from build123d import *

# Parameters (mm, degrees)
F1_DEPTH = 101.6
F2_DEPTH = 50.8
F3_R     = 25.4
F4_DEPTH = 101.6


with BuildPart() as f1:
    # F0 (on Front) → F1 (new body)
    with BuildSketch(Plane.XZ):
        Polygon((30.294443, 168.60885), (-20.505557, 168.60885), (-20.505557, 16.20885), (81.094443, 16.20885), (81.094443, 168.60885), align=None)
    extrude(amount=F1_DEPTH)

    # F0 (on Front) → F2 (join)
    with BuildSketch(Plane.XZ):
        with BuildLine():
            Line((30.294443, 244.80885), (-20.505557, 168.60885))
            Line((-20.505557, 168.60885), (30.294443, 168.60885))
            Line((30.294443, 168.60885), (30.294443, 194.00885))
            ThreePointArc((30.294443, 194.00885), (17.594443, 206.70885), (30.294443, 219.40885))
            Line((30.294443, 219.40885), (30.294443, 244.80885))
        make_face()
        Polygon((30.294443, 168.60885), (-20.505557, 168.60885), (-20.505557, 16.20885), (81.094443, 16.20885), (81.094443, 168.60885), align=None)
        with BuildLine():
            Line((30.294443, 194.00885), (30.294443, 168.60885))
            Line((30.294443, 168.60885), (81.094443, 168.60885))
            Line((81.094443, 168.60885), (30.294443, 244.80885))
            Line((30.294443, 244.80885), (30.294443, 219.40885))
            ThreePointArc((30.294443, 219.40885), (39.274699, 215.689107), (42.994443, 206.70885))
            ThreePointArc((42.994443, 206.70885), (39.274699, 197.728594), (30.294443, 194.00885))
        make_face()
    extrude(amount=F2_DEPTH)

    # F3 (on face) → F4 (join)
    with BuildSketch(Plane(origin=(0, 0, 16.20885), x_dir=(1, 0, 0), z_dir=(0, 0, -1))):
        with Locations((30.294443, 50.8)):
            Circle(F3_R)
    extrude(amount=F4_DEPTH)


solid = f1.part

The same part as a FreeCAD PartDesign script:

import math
import FreeCAD as App
import Part
import Sketcher
Q = App.Units.Quantity

doc = App.newDocument("Part")
body = doc.addObject("PartDesign::Body", "Body")

sketch1 = doc.addObject("Sketcher::SketchObject", "Sketch")
body.addObject(sketch1)
sketch1.AttachmentSupport = (doc.XZ_Plane, [""])
sketch1.MapMode = "FlatFace"
sketch1.addGeometry(Part.LineSegment(App.Vector(-21, 169, 0), App.Vector(-21, 16, 0)), False)
sketch1.addGeometry(Part.LineSegment(App.Vector(-21, 16, 0), App.Vector(81, 16, 0)), False)
sketch1.addGeometry(Part.LineSegment(App.Vector(81, 16, 0), App.Vector(81, 169, 0)), False)
sketch1.addGeometry(Part.LineSegment(App.Vector(81, 169, 0), App.Vector(-21, 169, 0)), False)
sketch1.addConstraint(Sketcher.Constraint("Coincident", 0, 2, 1, 1))
sketch1.addConstraint(Sketcher.Constraint("Coincident", 1, 2, 2, 1))
sketch1.addConstraint(Sketcher.Constraint("Coincident", 2, 2, 3, 1))
sketch1.addConstraint(Sketcher.Constraint("Coincident", 3, 2, 0, 1))
sketch1.addConstraint(Sketcher.Constraint("Vertical", 0))
sketch1.addConstraint(Sketcher.Constraint("Horizontal", 1))
sketch1.addConstraint(Sketcher.Constraint("Vertical", 2))
sketch1.addConstraint(Sketcher.Constraint("Horizontal", 3))
sketch1.addConstraint(Sketcher.Constraint("DistanceX", 1, 1, 1, 2, Q("4 in")))
sketch1.addConstraint(Sketcher.Constraint("DistanceY", 0, 2, 0, 1, Q("6 in")))
sketch1.addConstraint(Sketcher.Constraint("DistanceY", -1, 1, 0, 2, 16.20885))
sketch1.addConstraint(Sketcher.Constraint("DistanceX", 0, 2, -1, 1, 20.505557))
pad1 = doc.addObject("PartDesign::Pad", "Pad")
body.addObject(pad1)
pad1.Profile = sketch1
pad1.Length = Q("4 in")

sketch2 = doc.addObject("Sketcher::SketchObject", "Sketch001")
body.addObject(sketch2)
sketch2.AttachmentSupport = (doc.XZ_Plane, [""])
sketch2.MapMode = "FlatFace"
sketch2.addGeometry(Part.LineSegment(App.Vector(30, 245, 0), App.Vector(-21, 169, 0)), False)
sketch2.addGeometry(Part.LineSegment(App.Vector(-21, 169, 0), App.Vector(-21, 16, 0)), False)
sketch2.addGeometry(Part.LineSegment(App.Vector(-21, 16, 0), App.Vector(81, 16, 0)), False)
sketch2.addGeometry(Part.LineSegment(App.Vector(81, 16, 0), App.Vector(81, 169, 0)), False)
sketch2.addGeometry(Part.LineSegment(App.Vector(81, 169, 0), App.Vector(30, 245, 0)), False)
sketch2.addGeometry(Part.ArcOfCircle(Part.Circle(App.Vector(30, 207, 0), App.Vector(0, 0, 1), 13), math.radians(90), math.radians(270)), False)
sketch2.addGeometry(Part.ArcOfCircle(Part.Circle(App.Vector(30, 207, 0), App.Vector(0, 0, 1), 13), math.radians(0), math.radians(90)), False)
sketch2.addGeometry(Part.ArcOfCircle(Part.Circle(App.Vector(30, 207, 0), App.Vector(0, 0, 1), 13), math.radians(-90), math.radians(0)), False)
sketch2.addConstraint(Sketcher.Constraint("Coincident", 0, 2, 1, 1))
sketch2.addConstraint(Sketcher.Constraint("Coincident", 1, 2, 2, 1))
sketch2.addConstraint(Sketcher.Constraint("Coincident", 2, 2, 3, 1))
sketch2.addConstraint(Sketcher.Constraint("Coincident", 3, 2, 4, 1))
sketch2.addConstraint(Sketcher.Constraint("Coincident", 4, 2, 0, 1))
sketch2.addConstraint(Sketcher.Constraint("Tangent", 5, 1, 6, 2))
sketch2.addConstraint(Sketcher.Constraint("Tangent", 6, 1, 7, 2))
sketch2.addConstraint(Sketcher.Constraint("Tangent", 7, 1, 5, 2))
sketch2.addConstraint(Sketcher.Constraint("Vertical", 1))
sketch2.addConstraint(Sketcher.Constraint("Horizontal", 2))
sketch2.addConstraint(Sketcher.Constraint("Vertical", 3))
sketch2.addConstraint(Sketcher.Constraint("Horizontal", 0, 2, 3, 2))
sketch2.addConstraint(Sketcher.Constraint("Horizontal", 7, 3, 6, 1))
sketch2.addConstraint(Sketcher.Constraint("Vertical", 7, 3, 4, 2))
sketch2.addConstraint(Sketcher.Constraint("Vertical", 4, 2, 5, 1))
sketch2.addConstraint(Sketcher.Constraint("Vertical", 5, 1, 7, 1))
sketch2.addConstraint(Sketcher.Constraint("Equal", 0, 4))
sketch2.addConstraint(Sketcher.Constraint("Radius", 5, Q("0.5 in")))
sketch2.addConstraint(Sketcher.Constraint("DistanceX", 2, 1, 2, 2, Q("4 in")))
sketch2.addConstraint(Sketcher.Constraint("DistanceY", 1, 2, 1, 1, Q("6 in")))
sketch2.addConstraint(Sketcher.Constraint("DistanceY", 0, 2, 4, 2, Q("3 in")))
sketch2.addConstraint(Sketcher.Constraint("DistanceY", 5, 1, 4, 2, Q("1 in")))
sketch2.addConstraint(Sketcher.Constraint("DistanceY", -1, 1, 5, 3, 206.70885))
sketch2.addConstraint(Sketcher.Constraint("DistanceX", -1, 1, 5, 3, 30.294443))
pad2 = doc.addObject("PartDesign::Pad", "Pad001")
body.addObject(pad2)
pad2.Profile = sketch2
pad2.Length = Q("2 in")

sketch3 = doc.addObject("Sketcher::SketchObject", "Sketch002")
body.addObject(sketch3)
sketch3.AttachmentSupport = (doc.XY_Plane, [""])
sketch3.MapMode = "FlatFace"
sketch3.AttachmentOffset = App.Placement(App.Vector(0, 0, 16.20885), App.Rotation())
sketch3.addGeometry(Part.Circle(App.Vector(30, -51, 0), App.Vector(0, 0, 1), 25), False)
sketch3.addConstraint(Sketcher.Constraint("Diameter", 0, Q("2 in")))
sketch3.addConstraint(Sketcher.Constraint("DistanceY", 0, 3, -1, 1, Q("2 in")))
sketch3.addConstraint(Sketcher.Constraint("DistanceX", -1, 1, 0, 3, 30.294443))
pad3 = doc.addObject("PartDesign::Pad", "Pad002")
body.addObject(pad3)
pad3.Profile = sketch3
pad3.Length = Q("4 in")
pad3.Reversed = True

doc.recompute()
